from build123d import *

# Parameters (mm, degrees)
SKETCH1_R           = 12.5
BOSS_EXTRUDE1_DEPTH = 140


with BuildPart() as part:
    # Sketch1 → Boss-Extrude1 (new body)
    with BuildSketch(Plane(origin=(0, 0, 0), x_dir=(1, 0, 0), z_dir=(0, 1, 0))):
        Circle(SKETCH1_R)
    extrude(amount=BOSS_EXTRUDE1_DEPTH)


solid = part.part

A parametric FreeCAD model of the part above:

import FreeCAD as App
import Part
import Sketcher
from FreeCAD import Vector
Q = App.Units.Quantity

doc = App.newDocument("Part")
body = doc.addObject("PartDesign::Body", "Body")

sketch1 = body.newObject("Sketcher::SketchObject", "Sketch")
sketch1.AttachmentSupport = (doc.getObject("XZ_Plane"), [""])
sketch1.MapMode = "FlatFace"
sketch1.addGeometry(Part.Circle(Vector(0, 0, 0), Vector(0, 0, 1), 12), False)
sketch1.addConstraint([
    Sketcher.Constraint("Coincident", 0, 3, -1, 1),
    Sketcher.Constraint("Diameter", 0, Q("25 mm")),
])
pad1 = body.newObject("PartDesign::Pad", "Pad")
pad1.Profile = sketch1
pad1.Length = 140
pad1.Reversed = True

doc.recompute()
